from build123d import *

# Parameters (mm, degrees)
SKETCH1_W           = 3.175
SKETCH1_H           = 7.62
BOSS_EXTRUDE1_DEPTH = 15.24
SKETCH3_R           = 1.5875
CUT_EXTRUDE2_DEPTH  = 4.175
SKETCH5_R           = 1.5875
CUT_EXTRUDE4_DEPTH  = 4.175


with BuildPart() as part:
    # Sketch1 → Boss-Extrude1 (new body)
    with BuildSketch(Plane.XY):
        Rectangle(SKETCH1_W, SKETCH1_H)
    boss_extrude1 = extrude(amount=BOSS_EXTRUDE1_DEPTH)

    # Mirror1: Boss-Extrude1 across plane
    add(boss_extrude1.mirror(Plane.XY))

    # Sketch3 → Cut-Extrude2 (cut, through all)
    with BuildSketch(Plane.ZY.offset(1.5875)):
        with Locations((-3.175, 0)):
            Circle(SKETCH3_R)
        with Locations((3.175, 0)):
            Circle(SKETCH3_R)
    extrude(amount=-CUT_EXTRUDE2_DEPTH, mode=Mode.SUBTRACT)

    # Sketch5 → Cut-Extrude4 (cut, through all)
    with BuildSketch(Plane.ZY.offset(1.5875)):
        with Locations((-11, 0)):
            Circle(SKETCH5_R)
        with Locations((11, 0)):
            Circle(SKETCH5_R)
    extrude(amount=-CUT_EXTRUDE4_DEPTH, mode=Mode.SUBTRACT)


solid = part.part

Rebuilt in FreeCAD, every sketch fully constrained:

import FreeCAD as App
import Part
import Sketcher
from FreeCAD import Vector
Q = App.Units.Quantity

doc = App.newDocument("Part")
body = doc.addObject("PartDesign::Body", "Body")

sketch1 = body.newObject("Sketcher::SketchObject", "Sketch")
sketch1.AttachmentSupport = (doc.getObject("XY_Plane"), [""])
sketch1.MapMode = "FlatFace"
sketch1.addGeometry([
    Part.LineSegment(Vector(-1.6, 3.8, 0), Vector(-1.6, -3.8, 0)),
    Part.LineSegment(Vector(-1.6, -3.8, 0), Vector(1.6, -3.8, 0)),
    Part.LineSegment(Vector(1.6, -3.8, 0), Vector(1.6, 3.8, 0)),
    Part.LineSegment(Vector(1.6, 3.8, 0), Vector(-1.6, 3.8, 0)),
], False)
sketch1.addConstraint([
    Sketcher.Constraint("Coincident", 0, 2, 1, 1),
    Sketcher.Constraint("Coincident", 1, 2, 2, 1),
    Sketcher.Constraint("Coincident", 2, 2, 3, 1),
    Sketcher.Constraint("Coincident", 3, 2, 0, 1),
    Sketcher.Constraint("Vertical", 0),
    Sketcher.Constraint("Horizontal", 1),
    Sketcher.Constraint("Vertical", 2),
    Sketcher.Constraint("Horizontal", 3),
    Sketcher.Constraint("Symmetric", 0, 2, 2, 2, -1, 1),
    Sketcher.Constraint("DistanceY", 0, 2, 0, 1, Q("0.3 in")),
    Sketcher.Constraint("DistanceX", 1, 1, 1, 2, Q("0.125 in")),
])
pad1 = body.newObject("PartDesign::Pad", "Pad")
pad1.Profile = sketch1
pad1.Length = Q("0.6 in")
doc.recompute()

mirrored = body.newObject("PartDesign::Mirrored", "Mirrored")
mirrored.Originals = [pad1]
mirrored.MirrorPlane = (doc.getObject("XY_Plane"), [""])
body.Tip = mirrored

sketch2 = body.newObject("Sketcher::SketchObject", "Sketch001")
sketch2.AttachmentSupport = (doc.getObject("YZ_Plane"), [""])
sketch2.MapMode = "FlatFace"
sketch2.AttachmentOffset = App.Placement(Vector(0, 0, -0.0625 * 25.4), App.Rotation())
sketch2.addGeometry([
    Part.Circle(Vector(0, -3.2, 0), Vector(0, 0, 1), 1.6),
    Part.Circle(Vector(0, 3.2, 0), Vector(0, 0, 1), 1.6),
], False)
sketch2.addConstraint([
    Sketcher.Constraint("Equal", 0, 1),
    Sketcher.Constraint("Symmetric", 0, 3, 1, 3, -1, 1),
    Sketcher.Constraint("PointOnObject", 0, 3, -2),
    Sketcher.Constraint("Diameter", 0, Q("0.125 in")),
    Sketcher.Constraint("DistanceY", 0, 3, 1, 3, Q("0.25 in")),
])
pocket1 = body.newObject("PartDesign::Pocket", "Pocket")
pocket1.Profile = sketch2
pocket1.Type = "ThroughAll"
pocket1.Reversed = True

sketch3 = body.newObject("Sketcher::SketchObject", "Sketch002")
sketch3.AttachmentSupport = (doc.getObject("YZ_Plane"), [""])
sketch3.MapMode = "FlatFace"
sketch3.AttachmentOffset = App.Placement(Vector(0, 0, -0.0625 * 25.4), App.Rotation())
sketch3.addGeometry([
    Part.Circle(Vector(0, -11, 0), Vector(0, 0, 1), 1.6),
    Part.Circle(Vector(0, 11, 0), Vector(0, 0, 1), 1.6),
], False)
sketch3.addConstraint([
    Sketcher.Constraint("Equal", 0, 1),
    Sketcher.Constraint("Symmetric", 0, 3, 1, 3, -1, 1),
    Sketcher.Constraint("PointOnObject", 0, 3, -2),
    Sketcher.Constraint("Diameter", 0, Q("0.125 in")),
    Sketcher.Constraint("DistanceY", 0, 3, -1, 1, Q("11 mm")),
])
pocket2 = body.newObject("PartDesign::Pocket", "Pocket001")
pocket2.Profile = sketch3
pocket2.Type = "ThroughAll"
pocket2.Reversed = True

doc.recompute()
